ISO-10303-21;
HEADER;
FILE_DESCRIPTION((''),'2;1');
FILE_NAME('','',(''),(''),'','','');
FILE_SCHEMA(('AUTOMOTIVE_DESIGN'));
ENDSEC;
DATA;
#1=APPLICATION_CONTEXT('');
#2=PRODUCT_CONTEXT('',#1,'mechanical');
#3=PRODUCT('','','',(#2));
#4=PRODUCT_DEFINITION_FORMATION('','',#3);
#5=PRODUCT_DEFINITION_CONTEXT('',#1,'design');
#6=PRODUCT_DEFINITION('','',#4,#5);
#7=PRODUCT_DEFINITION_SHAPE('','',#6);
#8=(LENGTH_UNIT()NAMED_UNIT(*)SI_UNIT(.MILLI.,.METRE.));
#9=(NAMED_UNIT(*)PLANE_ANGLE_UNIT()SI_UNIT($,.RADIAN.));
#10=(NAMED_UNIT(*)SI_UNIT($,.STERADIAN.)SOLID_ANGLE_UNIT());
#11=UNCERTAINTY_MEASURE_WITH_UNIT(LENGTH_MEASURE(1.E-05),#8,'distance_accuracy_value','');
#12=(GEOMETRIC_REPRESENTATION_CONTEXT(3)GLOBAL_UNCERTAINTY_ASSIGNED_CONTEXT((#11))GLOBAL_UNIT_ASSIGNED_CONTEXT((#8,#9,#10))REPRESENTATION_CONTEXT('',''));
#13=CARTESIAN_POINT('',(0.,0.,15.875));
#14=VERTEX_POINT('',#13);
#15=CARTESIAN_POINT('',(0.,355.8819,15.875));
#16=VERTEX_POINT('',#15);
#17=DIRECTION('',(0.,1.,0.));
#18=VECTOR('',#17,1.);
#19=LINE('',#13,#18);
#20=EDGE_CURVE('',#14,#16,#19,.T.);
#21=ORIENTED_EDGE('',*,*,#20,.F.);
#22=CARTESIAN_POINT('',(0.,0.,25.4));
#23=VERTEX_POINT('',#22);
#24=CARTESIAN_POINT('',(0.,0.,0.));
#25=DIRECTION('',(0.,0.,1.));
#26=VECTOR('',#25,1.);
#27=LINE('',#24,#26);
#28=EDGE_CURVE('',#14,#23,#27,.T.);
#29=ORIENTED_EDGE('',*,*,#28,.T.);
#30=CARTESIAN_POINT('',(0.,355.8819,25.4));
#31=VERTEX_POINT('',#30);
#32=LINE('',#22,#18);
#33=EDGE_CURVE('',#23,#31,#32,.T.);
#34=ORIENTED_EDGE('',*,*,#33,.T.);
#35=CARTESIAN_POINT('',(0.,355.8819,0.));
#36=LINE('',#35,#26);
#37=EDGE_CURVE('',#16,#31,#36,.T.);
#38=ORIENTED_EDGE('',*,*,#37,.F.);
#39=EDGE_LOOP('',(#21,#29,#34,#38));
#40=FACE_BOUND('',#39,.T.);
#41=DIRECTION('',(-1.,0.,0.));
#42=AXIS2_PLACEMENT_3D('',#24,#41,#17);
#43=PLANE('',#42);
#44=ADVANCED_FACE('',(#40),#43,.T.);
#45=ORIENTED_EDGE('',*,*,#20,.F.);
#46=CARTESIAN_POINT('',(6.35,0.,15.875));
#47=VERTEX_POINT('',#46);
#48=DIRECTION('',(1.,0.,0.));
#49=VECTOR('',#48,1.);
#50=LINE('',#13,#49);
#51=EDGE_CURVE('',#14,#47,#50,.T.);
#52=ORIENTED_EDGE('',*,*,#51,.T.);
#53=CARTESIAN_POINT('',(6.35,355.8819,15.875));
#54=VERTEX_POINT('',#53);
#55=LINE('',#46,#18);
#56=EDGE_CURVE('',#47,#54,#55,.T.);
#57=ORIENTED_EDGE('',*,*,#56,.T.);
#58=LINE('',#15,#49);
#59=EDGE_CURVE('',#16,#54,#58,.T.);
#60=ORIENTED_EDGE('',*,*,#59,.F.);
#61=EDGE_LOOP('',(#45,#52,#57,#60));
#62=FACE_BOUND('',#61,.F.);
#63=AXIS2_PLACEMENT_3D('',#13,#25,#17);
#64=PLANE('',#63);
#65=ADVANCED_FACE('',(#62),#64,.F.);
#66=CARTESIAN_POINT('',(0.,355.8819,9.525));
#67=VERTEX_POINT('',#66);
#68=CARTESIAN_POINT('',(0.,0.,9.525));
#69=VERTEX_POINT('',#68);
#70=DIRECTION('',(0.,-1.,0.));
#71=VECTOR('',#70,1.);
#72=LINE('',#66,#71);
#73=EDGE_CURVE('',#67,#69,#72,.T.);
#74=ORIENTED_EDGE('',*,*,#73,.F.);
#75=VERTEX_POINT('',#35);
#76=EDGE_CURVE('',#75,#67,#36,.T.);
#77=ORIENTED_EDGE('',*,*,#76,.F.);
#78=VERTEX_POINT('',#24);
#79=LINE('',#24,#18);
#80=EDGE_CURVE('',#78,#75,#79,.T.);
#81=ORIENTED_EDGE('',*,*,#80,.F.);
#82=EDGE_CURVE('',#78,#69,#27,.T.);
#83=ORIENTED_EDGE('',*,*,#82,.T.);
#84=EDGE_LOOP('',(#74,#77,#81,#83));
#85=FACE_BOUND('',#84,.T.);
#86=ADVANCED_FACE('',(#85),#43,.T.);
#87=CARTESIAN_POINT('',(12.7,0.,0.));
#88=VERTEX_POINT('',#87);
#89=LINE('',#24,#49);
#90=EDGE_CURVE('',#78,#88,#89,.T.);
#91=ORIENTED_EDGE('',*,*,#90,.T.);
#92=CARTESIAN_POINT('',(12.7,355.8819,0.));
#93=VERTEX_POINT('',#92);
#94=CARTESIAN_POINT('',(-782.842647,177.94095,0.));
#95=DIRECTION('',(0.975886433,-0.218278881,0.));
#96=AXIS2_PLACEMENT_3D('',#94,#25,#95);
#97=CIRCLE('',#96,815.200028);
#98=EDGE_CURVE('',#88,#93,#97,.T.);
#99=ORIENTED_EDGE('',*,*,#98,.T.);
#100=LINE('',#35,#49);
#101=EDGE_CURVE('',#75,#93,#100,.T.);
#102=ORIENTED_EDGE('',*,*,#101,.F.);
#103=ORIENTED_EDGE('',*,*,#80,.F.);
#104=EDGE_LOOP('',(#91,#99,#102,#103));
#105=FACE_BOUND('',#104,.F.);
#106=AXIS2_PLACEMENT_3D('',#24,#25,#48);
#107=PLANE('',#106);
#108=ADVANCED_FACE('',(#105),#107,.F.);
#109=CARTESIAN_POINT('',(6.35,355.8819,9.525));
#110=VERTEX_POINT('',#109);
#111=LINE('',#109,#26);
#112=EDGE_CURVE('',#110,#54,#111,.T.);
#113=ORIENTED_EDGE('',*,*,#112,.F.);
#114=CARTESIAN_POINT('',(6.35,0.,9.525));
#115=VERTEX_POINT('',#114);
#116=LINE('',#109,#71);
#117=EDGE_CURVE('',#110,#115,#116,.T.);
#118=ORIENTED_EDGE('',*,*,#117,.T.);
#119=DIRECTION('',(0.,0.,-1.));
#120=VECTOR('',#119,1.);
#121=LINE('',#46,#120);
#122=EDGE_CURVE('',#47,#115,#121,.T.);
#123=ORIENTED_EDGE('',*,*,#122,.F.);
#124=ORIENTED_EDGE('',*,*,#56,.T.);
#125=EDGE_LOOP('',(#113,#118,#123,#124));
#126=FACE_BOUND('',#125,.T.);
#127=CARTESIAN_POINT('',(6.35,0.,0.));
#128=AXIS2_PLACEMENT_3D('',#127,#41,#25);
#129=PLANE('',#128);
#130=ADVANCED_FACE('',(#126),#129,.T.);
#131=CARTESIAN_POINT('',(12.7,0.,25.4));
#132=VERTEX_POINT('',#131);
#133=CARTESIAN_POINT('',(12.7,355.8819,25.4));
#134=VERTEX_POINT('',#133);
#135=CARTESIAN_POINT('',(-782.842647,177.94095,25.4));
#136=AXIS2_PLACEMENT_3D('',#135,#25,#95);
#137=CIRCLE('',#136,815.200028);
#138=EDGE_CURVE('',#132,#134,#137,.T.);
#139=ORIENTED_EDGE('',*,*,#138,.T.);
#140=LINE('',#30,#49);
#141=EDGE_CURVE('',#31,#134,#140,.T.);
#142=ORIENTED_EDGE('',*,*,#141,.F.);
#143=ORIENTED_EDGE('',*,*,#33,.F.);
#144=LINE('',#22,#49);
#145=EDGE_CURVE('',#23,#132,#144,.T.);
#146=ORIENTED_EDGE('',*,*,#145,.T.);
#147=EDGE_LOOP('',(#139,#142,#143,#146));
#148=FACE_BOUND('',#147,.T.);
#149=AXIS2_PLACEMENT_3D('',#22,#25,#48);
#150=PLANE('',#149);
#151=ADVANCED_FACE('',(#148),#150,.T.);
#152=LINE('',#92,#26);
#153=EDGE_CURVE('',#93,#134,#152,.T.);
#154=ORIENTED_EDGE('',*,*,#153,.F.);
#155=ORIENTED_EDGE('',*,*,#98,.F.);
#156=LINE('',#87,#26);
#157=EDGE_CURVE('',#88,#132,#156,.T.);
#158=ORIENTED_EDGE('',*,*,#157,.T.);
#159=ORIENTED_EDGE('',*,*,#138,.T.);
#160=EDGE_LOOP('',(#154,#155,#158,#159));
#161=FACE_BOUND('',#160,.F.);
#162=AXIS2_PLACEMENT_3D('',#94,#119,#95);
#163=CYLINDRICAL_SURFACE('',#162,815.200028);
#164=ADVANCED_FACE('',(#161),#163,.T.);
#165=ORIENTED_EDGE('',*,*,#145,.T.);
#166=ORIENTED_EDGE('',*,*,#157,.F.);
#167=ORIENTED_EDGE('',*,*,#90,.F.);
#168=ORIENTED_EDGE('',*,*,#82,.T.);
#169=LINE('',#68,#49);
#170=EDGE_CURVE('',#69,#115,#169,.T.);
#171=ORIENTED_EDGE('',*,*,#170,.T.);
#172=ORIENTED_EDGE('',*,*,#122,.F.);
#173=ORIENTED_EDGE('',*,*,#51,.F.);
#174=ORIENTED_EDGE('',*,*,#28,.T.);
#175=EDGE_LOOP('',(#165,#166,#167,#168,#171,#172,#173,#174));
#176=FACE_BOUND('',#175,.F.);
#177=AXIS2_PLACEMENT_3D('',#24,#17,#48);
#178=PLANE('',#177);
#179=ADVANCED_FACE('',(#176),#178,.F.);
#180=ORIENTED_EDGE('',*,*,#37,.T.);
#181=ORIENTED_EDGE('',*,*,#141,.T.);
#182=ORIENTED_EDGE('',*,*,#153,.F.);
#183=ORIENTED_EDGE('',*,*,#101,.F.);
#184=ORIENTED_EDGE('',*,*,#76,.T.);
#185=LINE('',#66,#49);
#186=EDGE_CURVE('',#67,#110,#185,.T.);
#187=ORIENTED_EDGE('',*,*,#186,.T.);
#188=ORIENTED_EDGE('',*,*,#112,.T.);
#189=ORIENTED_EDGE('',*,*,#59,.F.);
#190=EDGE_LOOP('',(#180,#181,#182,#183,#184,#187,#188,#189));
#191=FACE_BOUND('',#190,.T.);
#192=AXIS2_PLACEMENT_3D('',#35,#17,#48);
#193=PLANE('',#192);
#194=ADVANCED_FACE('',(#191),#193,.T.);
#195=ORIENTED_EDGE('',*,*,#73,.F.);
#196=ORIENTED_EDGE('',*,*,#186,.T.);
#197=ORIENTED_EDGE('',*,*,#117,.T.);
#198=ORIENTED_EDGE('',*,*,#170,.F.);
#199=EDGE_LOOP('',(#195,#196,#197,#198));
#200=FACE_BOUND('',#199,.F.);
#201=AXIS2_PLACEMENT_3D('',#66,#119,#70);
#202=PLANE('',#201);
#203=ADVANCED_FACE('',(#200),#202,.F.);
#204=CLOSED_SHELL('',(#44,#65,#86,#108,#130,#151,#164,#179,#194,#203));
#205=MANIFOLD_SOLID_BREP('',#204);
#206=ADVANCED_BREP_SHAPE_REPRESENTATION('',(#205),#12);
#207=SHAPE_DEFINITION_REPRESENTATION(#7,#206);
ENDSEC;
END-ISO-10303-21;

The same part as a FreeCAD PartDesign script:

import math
import FreeCAD as App
import Part
import Sketcher
from FreeCAD import Vector
Q = App.Units.Quantity


def add_polygon(sketch, points):
    """Adds a closed chain of lines whose ends are joined by coincident constraints."""
    first, n = sketch.GeometryCount, len(points)
    for a, b in zip(points, points[1:] + points[:1]):
        sketch.addGeometry(Part.LineSegment(App.Vector(*a, 0), App.Vector(*b, 0)), False)
    for i in range(n):
        sketch.addConstraint(Sketcher.Constraint("Coincident", first + i, 2, first + (i + 1) % n, 1))

doc = App.newDocument("Part")
params = doc.addObject("Spreadsheet::Sheet", "Params")
for row, (alias, value) in enumerate([
    ("sketch1_width", "0.5 in"),
    ("pad1_length", "1 in"),
    ("sketch2_height", "0.25 in"),
    ("pocket1_length", "0.25 in"),
], start=1):
    params.set(f"A{row}", alias)
    params.set(f"B{row}", "=" + value)
    params.setAlias(f"B{row}", alias)

body = doc.addObject("PartDesign::Body", "Body")

# Sketch on XY plane
sketch1 = body.newObject("Sketcher::SketchObject", "Sketch")
sketch1.AttachmentSupport = (doc.getObject("XY_Plane"), [""])
sketch1.MapMode = "FlatFace"
sketch1.addGeometry([
    Part.LineSegment(Vector(0, 356, 0), Vector(0, 0, 0)),
    Part.LineSegment(Vector(0, 0, 0), Vector(13, 0, 0)),
    Part.ArcOfCircle(Part.Circle(Vector(-783, 178, 0), Vector(0, 0, 1), 815), math.radians(-13), math.radians(13)),
    Part.LineSegment(Vector(13, 356, 0), Vector(0, 356, 0)),
], False)
sketch1.addConstraint([
    Sketcher.Constraint("Coincident", 0, 2, 1, 1),
    Sketcher.Constraint("Coincident", 1, 2, 2, 1),
    Sketcher.Constraint("Coincident", 2, 2, 3, 1),
    Sketcher.Constraint("Coincident", 3, 2, 0, 1),
    Sketcher.Constraint("Vertical", 0),
    Sketcher.Constraint("Horizontal", 1),
    Sketcher.Constraint("Horizontal", 3),
    Sketcher.Constraint("Coincident", 0, 2, -1, 1),
    Sketcher.Constraint("Vertical", 1, 2, 2, 2),
    Sketcher.Constraint("DistanceX", 1, 1, 1, 2, Q("0.5 in")),
    Sketcher.Constraint("DistanceY", 0, 2, 0, 1, Q("14.0111 in")),
    Sketcher.Constraint("Radius", 2, Q("32.0945 in")),
])
sketch1.setExpression("Constraints[9]", "Params.sketch1_width")
pad1 = body.newObject("PartDesign::Pad", "Pad")
pad1.Profile = sketch1
pad1.setExpression("Length", "Params.pad1_length")

# Sketch on YZ plane
sketch2 = body.newObject("Sketcher::SketchObject", "Sketch001")
sketch2.AttachmentSupport = (doc.getObject("YZ_Plane"), [""])
sketch2.MapMode = "FlatFace"
add_polygon(sketch2, [(356, 10), (0, 10), (0, 16), (356, 16)])  # lines 0-3
sketch2.addConstraint([
    Sketcher.Constraint("Horizontal", 0),
    Sketcher.Constraint("Vertical", 1),
    Sketcher.Constraint("Horizontal", 2),
    Sketcher.Constraint("Vertical", 3),
    Sketcher.Constraint("PointOnObject", 0, 2, -2),
    Sketcher.Constraint("DistanceY", 1, 1, 1, 2, Q("0.25 in")),
    Sketcher.Constraint("DistanceX", 0, 2, 0, 1, Q("14.0111 in")),
    Sketcher.Constraint("DistanceY", -1, 1, 0, 2, Q("0.375 in")),
])
sketch2.setExpression("Constraints[9]", "Params.sketch2_height")
pocket1 = body.newObject("PartDesign::Pocket", "Pocket")
pocket1.Profile = sketch2
pocket1.setExpression("Length", "Params.pocket1_length")
pocket1.Reversed = True

doc.recompute()
